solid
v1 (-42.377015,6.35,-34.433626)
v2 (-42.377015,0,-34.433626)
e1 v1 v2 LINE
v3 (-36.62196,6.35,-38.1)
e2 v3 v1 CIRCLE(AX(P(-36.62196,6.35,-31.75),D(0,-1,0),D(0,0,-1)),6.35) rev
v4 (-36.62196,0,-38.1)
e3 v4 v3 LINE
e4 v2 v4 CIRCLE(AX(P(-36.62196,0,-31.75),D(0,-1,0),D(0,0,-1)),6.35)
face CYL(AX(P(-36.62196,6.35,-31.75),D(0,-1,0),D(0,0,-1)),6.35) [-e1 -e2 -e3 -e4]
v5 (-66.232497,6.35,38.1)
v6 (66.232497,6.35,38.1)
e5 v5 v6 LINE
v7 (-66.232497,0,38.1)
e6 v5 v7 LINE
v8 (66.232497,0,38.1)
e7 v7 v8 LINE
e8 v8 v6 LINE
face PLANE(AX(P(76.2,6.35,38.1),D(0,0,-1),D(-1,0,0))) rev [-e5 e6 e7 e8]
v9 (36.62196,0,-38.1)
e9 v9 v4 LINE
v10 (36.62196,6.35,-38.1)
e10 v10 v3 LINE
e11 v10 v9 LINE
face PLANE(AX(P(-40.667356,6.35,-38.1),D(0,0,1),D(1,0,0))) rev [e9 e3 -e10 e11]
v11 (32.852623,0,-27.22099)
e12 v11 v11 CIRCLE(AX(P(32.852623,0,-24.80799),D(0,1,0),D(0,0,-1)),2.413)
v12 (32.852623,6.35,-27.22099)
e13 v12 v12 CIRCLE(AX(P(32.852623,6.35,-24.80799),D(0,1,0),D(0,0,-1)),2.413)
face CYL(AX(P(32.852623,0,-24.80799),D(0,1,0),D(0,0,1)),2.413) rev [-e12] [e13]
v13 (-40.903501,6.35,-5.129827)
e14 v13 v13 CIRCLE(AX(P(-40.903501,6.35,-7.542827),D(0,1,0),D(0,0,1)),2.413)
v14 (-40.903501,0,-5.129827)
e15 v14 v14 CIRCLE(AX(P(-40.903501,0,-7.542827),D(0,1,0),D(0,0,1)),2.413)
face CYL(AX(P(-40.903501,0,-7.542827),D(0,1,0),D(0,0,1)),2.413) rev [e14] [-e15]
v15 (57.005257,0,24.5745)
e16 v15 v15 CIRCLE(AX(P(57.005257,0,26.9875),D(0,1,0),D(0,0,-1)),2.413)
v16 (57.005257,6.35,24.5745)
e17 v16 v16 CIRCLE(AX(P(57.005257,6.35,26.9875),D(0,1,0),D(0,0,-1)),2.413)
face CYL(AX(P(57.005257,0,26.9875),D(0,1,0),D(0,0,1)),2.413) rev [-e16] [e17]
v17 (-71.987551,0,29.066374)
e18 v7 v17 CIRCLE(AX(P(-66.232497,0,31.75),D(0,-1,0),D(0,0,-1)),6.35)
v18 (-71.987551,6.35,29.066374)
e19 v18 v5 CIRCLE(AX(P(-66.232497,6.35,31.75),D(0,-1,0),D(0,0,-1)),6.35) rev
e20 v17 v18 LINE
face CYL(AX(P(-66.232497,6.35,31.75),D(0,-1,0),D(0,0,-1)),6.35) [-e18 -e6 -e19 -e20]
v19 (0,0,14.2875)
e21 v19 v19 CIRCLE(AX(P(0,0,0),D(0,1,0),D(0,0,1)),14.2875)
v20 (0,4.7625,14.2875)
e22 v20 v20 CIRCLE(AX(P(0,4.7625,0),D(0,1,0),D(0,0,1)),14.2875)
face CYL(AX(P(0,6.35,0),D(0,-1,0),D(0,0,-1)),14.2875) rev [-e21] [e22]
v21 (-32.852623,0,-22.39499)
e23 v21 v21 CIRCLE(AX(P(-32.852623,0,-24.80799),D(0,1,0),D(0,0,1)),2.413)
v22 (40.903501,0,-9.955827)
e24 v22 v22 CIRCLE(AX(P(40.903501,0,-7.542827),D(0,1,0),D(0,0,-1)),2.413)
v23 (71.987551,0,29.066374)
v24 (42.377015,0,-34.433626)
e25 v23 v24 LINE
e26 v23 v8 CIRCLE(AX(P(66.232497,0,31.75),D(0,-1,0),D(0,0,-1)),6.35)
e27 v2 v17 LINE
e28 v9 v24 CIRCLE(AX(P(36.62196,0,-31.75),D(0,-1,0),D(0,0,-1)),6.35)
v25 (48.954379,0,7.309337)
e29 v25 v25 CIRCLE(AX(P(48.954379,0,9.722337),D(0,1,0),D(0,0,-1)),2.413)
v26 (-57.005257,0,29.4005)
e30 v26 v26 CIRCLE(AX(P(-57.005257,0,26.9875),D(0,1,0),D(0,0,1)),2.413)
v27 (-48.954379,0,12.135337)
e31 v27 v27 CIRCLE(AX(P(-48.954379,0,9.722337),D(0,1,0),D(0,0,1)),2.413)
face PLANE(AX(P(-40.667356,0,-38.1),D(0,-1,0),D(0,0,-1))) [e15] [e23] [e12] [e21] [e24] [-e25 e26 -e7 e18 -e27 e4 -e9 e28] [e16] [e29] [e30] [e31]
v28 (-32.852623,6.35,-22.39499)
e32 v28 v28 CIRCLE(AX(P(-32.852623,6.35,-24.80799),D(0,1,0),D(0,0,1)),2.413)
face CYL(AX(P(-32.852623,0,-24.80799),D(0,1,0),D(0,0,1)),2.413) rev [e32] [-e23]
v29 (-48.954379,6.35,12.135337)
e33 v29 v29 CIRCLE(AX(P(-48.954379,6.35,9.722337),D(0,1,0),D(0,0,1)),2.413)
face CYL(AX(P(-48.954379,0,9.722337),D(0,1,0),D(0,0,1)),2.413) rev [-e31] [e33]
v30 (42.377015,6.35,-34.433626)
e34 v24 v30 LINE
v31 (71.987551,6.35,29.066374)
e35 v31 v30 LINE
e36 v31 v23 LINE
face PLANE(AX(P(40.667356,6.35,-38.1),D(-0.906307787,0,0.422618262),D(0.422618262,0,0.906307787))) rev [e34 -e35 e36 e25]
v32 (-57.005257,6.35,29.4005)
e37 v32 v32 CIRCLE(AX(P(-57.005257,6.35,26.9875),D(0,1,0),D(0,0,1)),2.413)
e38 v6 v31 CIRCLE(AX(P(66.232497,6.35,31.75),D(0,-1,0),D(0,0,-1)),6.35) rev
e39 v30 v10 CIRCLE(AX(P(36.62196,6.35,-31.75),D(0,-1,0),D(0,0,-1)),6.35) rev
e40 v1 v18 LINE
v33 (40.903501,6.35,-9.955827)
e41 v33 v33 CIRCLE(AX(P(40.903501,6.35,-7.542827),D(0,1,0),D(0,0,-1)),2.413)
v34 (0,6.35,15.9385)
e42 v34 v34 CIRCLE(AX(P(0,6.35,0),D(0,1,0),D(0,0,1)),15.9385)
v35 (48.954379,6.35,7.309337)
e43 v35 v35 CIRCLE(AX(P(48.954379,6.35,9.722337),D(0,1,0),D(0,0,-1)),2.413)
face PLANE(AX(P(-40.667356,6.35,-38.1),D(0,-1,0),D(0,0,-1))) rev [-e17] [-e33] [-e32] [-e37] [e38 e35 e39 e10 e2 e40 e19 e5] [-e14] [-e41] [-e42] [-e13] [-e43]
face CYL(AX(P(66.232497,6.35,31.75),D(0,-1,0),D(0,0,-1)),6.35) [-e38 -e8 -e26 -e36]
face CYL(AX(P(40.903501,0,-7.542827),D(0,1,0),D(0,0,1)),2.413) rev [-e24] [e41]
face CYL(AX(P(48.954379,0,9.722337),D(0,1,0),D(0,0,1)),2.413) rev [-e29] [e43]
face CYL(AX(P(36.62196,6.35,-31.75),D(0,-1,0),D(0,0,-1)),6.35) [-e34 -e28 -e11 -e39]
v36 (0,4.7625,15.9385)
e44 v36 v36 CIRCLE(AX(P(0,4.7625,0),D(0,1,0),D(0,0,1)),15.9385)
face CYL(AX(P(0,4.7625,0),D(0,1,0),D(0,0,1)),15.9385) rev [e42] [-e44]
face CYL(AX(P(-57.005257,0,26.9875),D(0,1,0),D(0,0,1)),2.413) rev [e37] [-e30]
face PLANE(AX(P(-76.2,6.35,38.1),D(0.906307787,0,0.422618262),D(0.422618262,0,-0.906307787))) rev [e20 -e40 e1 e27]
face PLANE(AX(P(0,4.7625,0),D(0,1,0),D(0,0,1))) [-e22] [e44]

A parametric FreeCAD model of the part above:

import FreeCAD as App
import Part
import Sketcher
Q = App.Units.Quantity


def edges_at(feature, points):
    """Names of the edges that pass closest to the given points."""
    edges = feature.Shape.Edges
    near = lambda p: min(range(len(edges)), key=lambda i: edges[i].distToShape(Part.Vertex(*p))[0])
    return sorted({f"Edge{near(p) + 1}" for p in points})


def add_polygon(sketch, points):
    """Adds a closed chain of lines whose ends are joined by coincident constraints."""
    first, n = sketch.GeometryCount, len(points)
    for a, b in zip(points, points[1:] + points[:1]):
        sketch.addGeometry(Part.LineSegment(App.Vector(*a, 0), App.Vector(*b, 0)), False)
    for i in range(n):
        sketch.addConstraint(Sketcher.Constraint("Coincident", first + i, 2, first + (i + 1) % n, 1))

doc = App.newDocument("Part")
body = doc.addObject("PartDesign::Body", "Body")

sketch1 = doc.addObject("Sketcher::SketchObject", "Sketch")
body.addObject(sketch1)
sketch1.AttachmentSupport = (doc.XZ_Plane, [""])
sketch1.MapMode = "FlatFace"
add_polygon(sketch1, [(41, -38), (-41, -38), (-76, 38), (76, 38)])
sketch1.addGeometry(Part.Circle(App.Vector(0, 0, 0), App.Vector(0, 0, 1), 14), False)
sketch1.addConstraint([
    Sketcher.Constraint("Horizontal", 0),
    Sketcher.Constraint("Horizontal", 2),
    Sketcher.Constraint("Coincident", 4, 3, -1, 1),
    Sketcher.Constraint("Equal", 1, 3),
    Sketcher.Constraint("DistanceX", 2, 1, 2, 2, Q("6 in")),
    Sketcher.Constraint("Diameter", 4, Q("1.125 in")),
    Sketcher.Constraint("DistanceX", 1, 2, -1, 1, Q("3 in")),
    Sketcher.Constraint("Angle", 1, Q("115 deg")),
    Sketcher.Constraint("DistanceY", 0, 2, 1, 2, Q("3 in")),
    Sketcher.Constraint("DistanceY", 0, 2, -1, 1, Q("1.5 in")),
])
pad1 = doc.addObject("PartDesign::Pad", "Pad")
body.addObject(pad1)
pad1.Profile = sketch1
pad1.Length = Q("0.25 in")
pad1.Reversed = True

sketch2 = doc.addObject("Sketcher::SketchObject", "Sketch001")
body.addObject(sketch2)
sketch2.AttachmentSupport = (doc.XZ_Plane, [""])
sketch2.MapMode = "FlatFace"
sketch2.AttachmentOffset = App.Placement(App.Vector(0, 0, -0.25 * 25.4), App.Rotation())
sketch2.addGeometry([
    Part.Circle(App.Vector(-57, 27, 0), App.Vector(0, 0, 1), 2.4),
    Part.Circle(App.Vector(-49, 9.7, 0), App.Vector(0, 0, 1), 2.4),
    Part.Circle(App.Vector(-40.9, -7.5, 0), App.Vector(0, 0, 1), 2.4),
    Part.Circle(App.Vector(-32.9, -24.8, 0), App.Vector(0, 0, 1), 2.4),
    Part.Circle(App.Vector(32.9, -24.8, 0), App.Vector(0, 0, 1), 2.4),
    Part.Circle(App.Vector(40.9, -7.5, 0), App.Vector(0, 0, 1), 2.4),
    Part.Circle(App.Vector(49, 9.7, 0), App.Vector(0, 0, 1), 2.4),
    Part.Circle(App.Vector(57, 27, 0), App.Vector(0, 0, 1), 2.4),
], False)
sketch2.addConstraint([
    Sketcher.Constraint("Equal", 0, 1),
    Sketcher.Constraint("Equal", 1, 2),
    Sketcher.Constraint("Equal", 2, 3),
    Sketcher.Constraint("Equal", 3, 4),
    Sketcher.Constraint("Equal", 4, 5),
    Sketcher.Constraint("Equal", 5, 6),
    Sketcher.Constraint("Equal", 6, 7),
    Sketcher.Constraint("Symmetric", 3, 3, 4, 3, -2),
    Sketcher.Constraint("Symmetric", 2, 3, 5, 3, -2),
    Sketcher.Constraint("Symmetric", 1, 3, 6, 3, -2),
    Sketcher.Constraint("Symmetric", 0, 3, 7, 3, -2),
    Sketcher.Constraint("Diameter", 0, Q("0.19 in")),
    Sketcher.Constraint("DistanceY", -1, 1, 0, 3, Q("1.0625 in")),
    Sketcher.Constraint("DistanceX", 2, 3, -1, 1, 40.903501),
    Sketcher.Constraint("DistanceX", 1, 3, 4, 3, 81.807002),
    Sketcher.Constraint("DistanceX", 1, 3, -1, 1, 48.954379),
    Sketcher.Constraint("DistanceY", 3, 3, -1, 1, 24.80799),
    Sketcher.Constraint("DistanceX", 0, 3, 4, 3, 89.857879),
    Sketcher.Constraint("DistanceY", -1, 1, 1, 3, 9.722337),
    Sketcher.Constraint("DistanceY", 2, 3, -1, 1, 7.542827),
])
pocket1 = doc.addObject("PartDesign::Pocket", "Pocket")
body.addObject(pocket1)
pocket1.Profile = sketch2
pocket1.Type = "ThroughAll"
pocket1.Reversed = True
doc.recompute()

fillet = doc.addObject("PartDesign::Fillet", "Fillet")
body.addObject(fillet)
fillet.Base = (pocket1, edges_at(pocket1, [
    (-40.667, 3.175, -38.1),
    (40.667, 3.175, -38.1),
    (76.2, 3.175, 38.1),
    (-76.2, 3.175, 38.1),
]))
fillet.Radius = Q("0.25 in")

sketch3 = doc.addObject("Sketcher::SketchObject", "Sketch002")
body.addObject(sketch3)
sketch3.AttachmentSupport = (doc.XZ_Plane, [""])
sketch3.MapMode = "FlatFace"
sketch3.AttachmentOffset = App.Placement(App.Vector(0, 0, -0.25 * 25.4), App.Rotation())
sketch3.addGeometry(Part.Circle(App.Vector(0, 0, 0), App.Vector(0, 0, 1), 16), False)
sketch3.addConstraint([
    Sketcher.Constraint("Coincident", 0, 3, -1, 1),
    Sketcher.Constraint("Diameter", 0, Q("1.255 in")),
])
pocket2 = doc.addObject("PartDesign::Pocket", "Pocket001")
body.addObject(pocket2)
pocket2.Profile = sketch3
pocket2.Length = Q("0.0625 in")
pocket2.Reversed = True

doc.recompute()
